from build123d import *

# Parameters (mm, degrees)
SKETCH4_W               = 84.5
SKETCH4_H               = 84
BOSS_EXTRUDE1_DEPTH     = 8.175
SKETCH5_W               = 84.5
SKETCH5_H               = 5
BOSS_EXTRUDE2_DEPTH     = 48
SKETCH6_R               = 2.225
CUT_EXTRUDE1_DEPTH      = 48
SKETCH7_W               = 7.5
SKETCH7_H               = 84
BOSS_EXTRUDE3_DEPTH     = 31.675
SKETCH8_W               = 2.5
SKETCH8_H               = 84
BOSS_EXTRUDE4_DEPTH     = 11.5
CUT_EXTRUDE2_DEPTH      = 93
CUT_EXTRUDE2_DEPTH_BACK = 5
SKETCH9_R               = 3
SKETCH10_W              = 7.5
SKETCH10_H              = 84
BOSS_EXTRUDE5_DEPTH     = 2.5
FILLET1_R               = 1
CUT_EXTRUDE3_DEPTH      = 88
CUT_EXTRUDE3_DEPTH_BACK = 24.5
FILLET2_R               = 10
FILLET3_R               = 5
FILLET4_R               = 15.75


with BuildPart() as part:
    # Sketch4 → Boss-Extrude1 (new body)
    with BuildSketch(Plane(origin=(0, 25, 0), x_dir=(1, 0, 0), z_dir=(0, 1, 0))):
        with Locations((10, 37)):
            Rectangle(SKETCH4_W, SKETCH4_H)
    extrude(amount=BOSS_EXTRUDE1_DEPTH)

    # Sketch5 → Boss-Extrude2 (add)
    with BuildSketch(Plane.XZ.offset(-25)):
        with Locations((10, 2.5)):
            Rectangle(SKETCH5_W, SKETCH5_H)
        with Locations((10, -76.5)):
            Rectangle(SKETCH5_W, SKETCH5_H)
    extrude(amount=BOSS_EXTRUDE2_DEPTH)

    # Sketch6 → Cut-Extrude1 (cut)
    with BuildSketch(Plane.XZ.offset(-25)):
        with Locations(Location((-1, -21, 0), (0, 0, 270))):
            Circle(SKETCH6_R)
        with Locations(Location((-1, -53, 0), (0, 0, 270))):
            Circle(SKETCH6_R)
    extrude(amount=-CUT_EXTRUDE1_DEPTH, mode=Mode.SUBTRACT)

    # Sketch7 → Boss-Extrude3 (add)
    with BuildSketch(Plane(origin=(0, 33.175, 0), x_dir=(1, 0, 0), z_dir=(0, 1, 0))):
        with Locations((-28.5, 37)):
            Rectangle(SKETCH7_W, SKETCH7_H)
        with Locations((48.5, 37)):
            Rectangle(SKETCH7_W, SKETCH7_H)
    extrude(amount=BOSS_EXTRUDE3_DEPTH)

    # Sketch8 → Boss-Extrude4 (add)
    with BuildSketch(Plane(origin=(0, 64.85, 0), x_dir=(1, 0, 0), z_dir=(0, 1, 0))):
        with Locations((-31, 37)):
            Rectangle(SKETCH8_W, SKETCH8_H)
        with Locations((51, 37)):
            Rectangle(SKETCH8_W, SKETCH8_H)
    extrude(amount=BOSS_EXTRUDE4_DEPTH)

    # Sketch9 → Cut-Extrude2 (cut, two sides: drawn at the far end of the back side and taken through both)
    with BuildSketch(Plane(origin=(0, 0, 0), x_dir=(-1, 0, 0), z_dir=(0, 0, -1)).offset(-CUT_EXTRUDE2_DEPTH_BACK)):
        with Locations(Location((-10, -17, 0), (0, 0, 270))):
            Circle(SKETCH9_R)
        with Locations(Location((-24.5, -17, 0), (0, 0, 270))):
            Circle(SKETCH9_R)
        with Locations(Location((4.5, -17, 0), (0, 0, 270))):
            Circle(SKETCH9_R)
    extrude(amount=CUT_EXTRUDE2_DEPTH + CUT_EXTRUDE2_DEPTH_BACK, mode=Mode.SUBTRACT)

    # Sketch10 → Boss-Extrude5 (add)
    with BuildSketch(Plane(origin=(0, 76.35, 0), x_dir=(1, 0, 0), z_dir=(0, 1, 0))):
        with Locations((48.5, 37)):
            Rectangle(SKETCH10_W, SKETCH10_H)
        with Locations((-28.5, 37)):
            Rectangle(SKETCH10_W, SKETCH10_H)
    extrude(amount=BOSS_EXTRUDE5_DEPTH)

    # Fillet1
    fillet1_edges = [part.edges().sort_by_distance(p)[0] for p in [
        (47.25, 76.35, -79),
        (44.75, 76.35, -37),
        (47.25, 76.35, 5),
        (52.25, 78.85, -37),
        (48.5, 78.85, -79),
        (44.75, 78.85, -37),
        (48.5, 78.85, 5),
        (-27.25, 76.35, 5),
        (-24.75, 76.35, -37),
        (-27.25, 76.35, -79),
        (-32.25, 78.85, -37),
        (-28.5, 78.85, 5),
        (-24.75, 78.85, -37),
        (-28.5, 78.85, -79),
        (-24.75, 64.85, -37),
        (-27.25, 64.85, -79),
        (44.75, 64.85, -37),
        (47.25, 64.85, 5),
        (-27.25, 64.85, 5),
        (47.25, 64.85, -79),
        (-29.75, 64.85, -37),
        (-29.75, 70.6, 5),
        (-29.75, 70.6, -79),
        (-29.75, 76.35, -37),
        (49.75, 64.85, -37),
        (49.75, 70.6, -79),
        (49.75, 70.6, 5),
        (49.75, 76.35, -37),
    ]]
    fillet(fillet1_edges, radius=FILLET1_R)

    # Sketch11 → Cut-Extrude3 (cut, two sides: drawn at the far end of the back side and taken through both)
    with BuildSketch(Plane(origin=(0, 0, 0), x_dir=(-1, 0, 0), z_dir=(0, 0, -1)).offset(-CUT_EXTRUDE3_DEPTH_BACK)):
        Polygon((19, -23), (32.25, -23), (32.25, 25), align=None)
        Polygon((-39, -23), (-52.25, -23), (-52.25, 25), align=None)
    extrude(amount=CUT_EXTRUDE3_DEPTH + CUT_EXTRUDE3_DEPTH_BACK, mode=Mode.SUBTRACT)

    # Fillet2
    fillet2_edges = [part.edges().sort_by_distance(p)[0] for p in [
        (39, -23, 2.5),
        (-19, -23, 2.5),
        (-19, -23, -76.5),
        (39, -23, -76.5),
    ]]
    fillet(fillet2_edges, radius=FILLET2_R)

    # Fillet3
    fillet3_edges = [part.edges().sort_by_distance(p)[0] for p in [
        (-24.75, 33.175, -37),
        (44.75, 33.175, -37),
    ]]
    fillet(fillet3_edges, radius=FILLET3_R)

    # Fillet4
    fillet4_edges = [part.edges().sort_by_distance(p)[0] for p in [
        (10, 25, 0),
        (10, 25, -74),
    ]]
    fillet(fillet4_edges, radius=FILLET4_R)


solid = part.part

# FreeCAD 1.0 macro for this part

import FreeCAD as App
import Part
import Sketcher
from FreeCAD import Vector
Q = App.Units.Quantity


def edges_at(feature, points):
    """Names of the edges that pass closest to the given points."""
    edges = feature.Shape.Edges
    near = lambda p: min(range(len(edges)), key=lambda i: edges[i].distToShape(Part.Vertex(*p))[0])
    return sorted({f"Edge{near(p) + 1}" for p in points})

doc = App.newDocument("Part")
body = doc.addObject("PartDesign::Body", "Body")

# Sketch on XZ plane
sketch1 = body.newObject("Sketcher::SketchObject", "Sketch")
sketch1.AttachmentSupport = (doc.getObject("XZ_Plane"), [""])
sketch1.MapMode = "FlatFace"
sketch1.AttachmentOffset = App.Placement(Vector(0, 0, -25), App.Rotation())
sketch1.addGeometry(Part.LineSegment(Vector(-32, -79, 0), Vector(-32, 5, 0)), False)
sketch1.addGeometry(Part.LineSegment(Vector(-32, 5, 0), Vector(52, 5, 0)), False)
sketch1.addGeometry(Part.LineSegment(Vector(52, 5, 0), Vector(52, -79, 0)), False)
sketch1.addGeometry(Part.LineSegment(Vector(52, -79, 0), Vector(-32, -79, 0)), False)
sketch1.addConstraint(Sketcher.Constraint("Coincident", 0, 2, 1, 1))
sketch1.addConstraint(Sketcher.Constraint("Coincident", 1, 2, 2, 1))
sketch1.addConstraint(Sketcher.Constraint("Coincident", 2, 2, 3, 1))
sketch1.addConstraint(Sketcher.Constraint("Coincident", 3, 2, 0, 1))
sketch1.addConstraint(Sketcher.Constraint("Vertical", 0))
sketch1.addConstraint(Sketcher.Constraint("Horizontal", 1))
sketch1.addConstraint(Sketcher.Constraint("Vertical", 2))
sketch1.addConstraint(Sketcher.Constraint("Horizontal", 3))
sketch1.addConstraint(Sketcher.Constraint("DistanceY", 0, 1, 0, 2, Q("84 mm")))
sketch1.addConstraint(Sketcher.Constraint("DistanceX", 1, 1, 1, 2, Q("84.5 mm")))
sketch1.addConstraint(Sketcher.Constraint("DistanceY", -1, 1, 0, 2, Q("5 mm")))
sketch1.addConstraint(Sketcher.Constraint("DistanceX", 0, 2, -1, 1, Q("32.25 mm")))
pad1 = body.newObject("PartDesign::Pad", "Pad")
pad1.Profile = sketch1
pad1.Length = 8.175
pad1.Reversed = True

# Sketch on XZ plane
sketch2 = body.newObject("Sketcher::SketchObject", "Sketch001")
sketch2.AttachmentSupport = (doc.getObject("XZ_Plane"), [""])
sketch2.MapMode = "FlatFace"
sketch2.AttachmentOffset = App.Placement(Vector(0, 0, -25), App.Rotation())
sketch2.addGeometry(Part.LineSegment(Vector(-32, 5, 0), Vector(-32, 0, 0)), False)
sketch2.addGeometry(Part.LineSegment(Vector(-32, 0, 0), Vector(52, 0, 0)), False)
sketch2.addGeometry(Part.LineSegment(Vector(52, 0, 0), Vector(52, 5, 0)), False)
sketch2.addGeometry(Part.LineSegment(Vector(52, 5, 0), Vector(-32, 5, 0)), False)
sketch2.addGeometry(Part.LineSegment(Vector(-32, -74, 0), Vector(-32, -79, 0)), False)
sketch2.addGeometry(Part.LineSegment(Vector(-32, -79, 0), Vector(52, -79, 0)), False)
sketch2.addGeometry(Part.LineSegment(Vector(52, -79, 0), Vector(52, -74, 0)), False)
sketch2.addGeometry(Part.LineSegment(Vector(52, -74, 0), Vector(-32, -74, 0)), False)
sketch2.addConstraint(Sketcher.Constraint("Coincident", 0, 2, 1, 1))
sketch2.addConstraint(Sketcher.Constraint("Coincident", 1, 2, 2, 1))
sketch2.addConstraint(Sketcher.Constraint("Coincident", 2, 2, 3, 1))
sketch2.addConstraint(Sketcher.Constraint("Coincident", 3, 2, 0, 1))
sketch2.addConstraint(Sketcher.Constraint("Coincident", 4, 2, 5, 1))
sketch2.addConstraint(Sketcher.Constraint("Coincident", 5, 2, 6, 1))
sketch2.addConstraint(Sketcher.Constraint("Coincident", 6, 2, 7, 1))
sketch2.addConstraint(Sketcher.Constraint("Coincident", 7, 2, 4, 1))
sketch2.addConstraint(Sketcher.Constraint("Vertical", 0))
sketch2.addConstraint(Sketcher.Constraint("Horizontal", 1))
sketch2.addConstraint(Sketcher.Constraint("Vertical", 2))
sketch2.addConstraint(Sketcher.Constraint("Horizontal", 3))
sketch2.addConstraint(Sketcher.Constraint("Vertical", 4))
sketch2.addConstraint(Sketcher.Constraint("Horizontal", 5))
sketch2.addConstraint(Sketcher.Constraint("Vertical", 6))
sketch2.addConstraint(Sketcher.Constraint("Horizontal", 7))
sketch2.addConstraint(Sketcher.Constraint("PointOnObject", 0, 2, -1))
sketch2.addConstraint(Sketcher.Constraint("Vertical", 3, 2, 4, 2))
sketch2.addConstraint(Sketcher.Constraint("Vertical", 2, 2, 5, 2))
sketch2.addConstraint(Sketcher.Constraint("Equal", 2, 4))
sketch2.addConstraint(Sketcher.Constraint("DistanceY", 0, 2, 0, 1, Q("5 mm")))
sketch2.addConstraint(Sketcher.Constraint("DistanceX", 1, 1, 1, 2, Q("84.5 mm")))
sketch2.addConstraint(Sketcher.Constraint("DistanceY", 4, 2, -1, 1, Q("79 mm")))
sketch2.addConstraint(Sketcher.Constraint("DistanceX", 0, 2, -1, 1, Q("32.25 mm")))
pad2 = body.newObject("PartDesign::Pad", "Pad001")
pad2.Profile = sketch2
pad2.Length = 48

# Sketch on XZ plane
sketch3 = body.newObject("Sketcher::SketchObject", "Sketch002")
sketch3.AttachmentSupport = (doc.getObject("XZ_Plane"), [""])
sketch3.MapMode = "FlatFace"
sketch3.AttachmentOffset = App.Placement(Vector(0, 0, -25), App.Rotation())
sketch3.addGeometry(Part.Circle(Vector(-1, -21, 0), Vector(0, 0, 1), 2.2), False)
sketch3.addGeometry(Part.Circle(Vector(-1, -53, 0), Vector(0, 0, 1), 2.2), False)
sketch3.addConstraint(Sketcher.Constraint("Equal", 0, 1))
sketch3.addConstraint(Sketcher.Constraint("Vertical", 0, 3, 1, 3))
sketch3.addConstraint(Sketcher.Constraint("Diameter", 0, Q("4.45 mm")))
sketch3.addConstraint(Sketcher.Constraint("DistanceX", 0, 3, -1, 1, Q("1 mm")))
sketch3.addConstraint(Sketcher.Constraint("DistanceY", 0, 3, -1, 1, Q("21 mm")))
sketch3.addConstraint(Sketcher.Constraint("DistanceY", 1, 3, -1, 1, Q("53 mm")))
pocket1 = body.newObject("PartDesign::Pocket", "Pocket")
pocket1.Profile = sketch3
pocket1.Length = 48

# Sketch on XZ plane
sketch4 = body.newObject("Sketcher::SketchObject", "Sketch003")
sketch4.AttachmentSupport = (doc.getObject("XZ_Plane"), [""])
sketch4.MapMode = "FlatFace"
sketch4.AttachmentOffset = App.Placement(Vector(0, 0, -33.175), App.Rotation())
sketch4.addGeometry(Part.LineSegment(Vector(-32, -79, 0), Vector(-32, 5, 0)), False)
sketch4.addGeometry(Part.LineSegment(Vector(-32, 5, 0), Vector(-25, 5, 0)), False)
sketch4.addGeometry(Part.LineSegment(Vector(-25, 5, 0), Vector(-25, -79, 0)), False)
sketch4.addGeometry(Part.LineSegment(Vector(-25, -79, 0), Vector(-32, -79, 0)), False)
sketch4.addGeometry(Part.LineSegment(Vector(45, -79, 0), Vector(45, 5, 0)), False)
sketch4.addGeometry(Part.LineSegment(Vector(45, 5, 0), Vector(52, 5, 0)), False)
sketch4.addGeometry(Part.LineSegment(Vector(52, 5, 0), Vector(52, -79, 0)), False)
sketch4.addGeometry(Part.LineSegment(Vector(52, -79, 0), Vector(45, -79, 0)), False)
sketch4.addConstraint(Sketcher.Constraint("Coincident", 0, 2, 1, 1))
sketch4.addConstraint(Sketcher.Constraint("Coincident", 1, 2, 2, 1))
sketch4.addConstraint(Sketcher.Constraint("Coincident", 2, 2, 3, 1))
sketch4.addConstraint(Sketcher.Constraint("Coincident", 3, 2, 0, 1))
sketch4.addConstraint(Sketcher.Constraint("Coincident", 4, 2, 5, 1))
sketch4.addConstraint(Sketcher.Constraint("Coincident", 5, 2, 6, 1))
sketch4.addConstraint(Sketcher.Constraint("Coincident", 6, 2, 7, 1))
sketch4.addConstraint(Sketcher.Constraint("Coincident", 7, 2, 4, 1))
sketch4.addConstraint(Sketcher.Constraint("Vertical", 0))
sketch4.addConstraint(Sketcher.Constraint("Horizontal", 1))
sketch4.addConstraint(Sketcher.Constraint("Vertical", 2))
sketch4.addConstraint(Sketcher.Constraint("Horizontal", 3))
sketch4.addConstraint(Sketcher.Constraint("Vertical", 4))
sketch4.addConstraint(Sketcher.Constraint("Horizontal", 5))
sketch4.addConstraint(Sketcher.Constraint("Vertical", 6))
sketch4.addConstraint(Sketcher.Constraint("Horizontal", 7))
sketch4.addConstraint(Sketcher.Constraint("Horizontal", 1, 2, 4, 2))
sketch4.addConstraint(Sketcher.Constraint("Horizontal", 3, 2, 6, 2))
sketch4.addConstraint(Sketcher.Constraint("Equal", 3, 5))
sketch4.addConstraint(Sketcher.Constraint("DistanceY", 0, 1, 0, 2, Q("84 mm")))
sketch4.addConstraint(Sketcher.Constraint("DistanceX", 1, 1, 1, 2, Q("7.5 mm")))
sketch4.addConstraint(Sketcher.Constraint("DistanceY", -1, 1, 0, 2, Q("5 mm")))
sketch4.addConstraint(Sketcher.Constraint("DistanceX", 0, 2, 4, 2, Q("77 mm")))
sketch4.addConstraint(Sketcher.Constraint("DistanceX", 0, 2, -1, 1, Q("32.25 mm")))
pad3 = body.newObject("PartDesign::Pad", "Pad002")
pad3.Profile = sketch4
pad3.Length = 31.675
pad3.Reversed = True

# Sketch on XZ plane
sketch5 = body.newObject("Sketcher::SketchObject", "Sketch004")
sketch5.AttachmentSupport = (doc.getObject("XZ_Plane"), [""])
sketch5.MapMode = "FlatFace"
sketch5.AttachmentOffset = App.Placement(Vector(0, 0, -64.85), App.Rotation())
sketch5.addGeometry(Part.LineSegment(Vector(-32.2, -79, 0), Vector(-32.2, 5, 0)), False)
sketch5.addGeometry(Part.LineSegment(Vector(-32.2, 5, 0), Vector(-29.8, 5, 0)), False)
sketch5.addGeometry(Part.LineSegment(Vector(-29.8, 5, 0), Vector(-29.8, -79, 0)), False)
sketch5.addGeometry(Part.LineSegment(Vector(-29.8, -79, 0), Vector(-32.2, -79, 0)), False)
sketch5.addGeometry(Part.LineSegment(Vector(49.8, -79, 0), Vector(49.8, 5, 0)), False)
sketch5.addGeometry(Part.LineSegment(Vector(49.8, 5, 0), Vector(52.2, 5, 0)), False)
sketch5.addGeometry(Part.LineSegment(Vector(52.2, 5, 0), Vector(52.2, -79, 0)), False)
sketch5.addGeometry(Part.LineSegment(Vector(52.2, -79, 0), Vector(49.8, -79, 0)), False)
sketch5.addConstraint(Sketcher.Constraint("Coincident", 0, 2, 1, 1))
sketch5.addConstraint(Sketcher.Constraint("Coincident", 1, 2, 2, 1))
sketch5.addConstraint(Sketcher.Constraint("Coincident", 2, 2, 3, 1))
sketch5.addConstraint(Sketcher.Constraint("Coincident", 3, 2, 0, 1))
sketch5.addConstraint(Sketcher.Constraint("Coincident", 4, 2, 5, 1))
sketch5.addConstraint(Sketcher.Constraint("Coincident", 5, 2, 6, 1))
sketch5.addConstraint(Sketcher.Constraint("Coincident", 6, 2, 7, 1))
sketch5.addConstraint(Sketcher.Constraint("Coincident", 7, 2, 4, 1))
sketch5.addConstraint(Sketcher.Constraint("Vertical", 0))
sketch5.addConstraint(Sketcher.Constraint("Horizontal", 1))
sketch5.addConstraint(Sketcher.Constraint("Vertical", 2))
sketch5.addConstraint(Sketcher.Constraint("Horizontal", 3))
sketch5.addConstraint(Sketcher.Constraint("Vertical", 4))
sketch5.addConstraint(Sketcher.Constraint("Horizontal", 5))
sketch5.addConstraint(Sketcher.Constraint("Vertical", 6))
sketch5.addConstraint(Sketcher.Constraint("Horizontal", 7))
sketch5.addConstraint(Sketcher.Constraint("Horizontal", 1, 2, 4, 2))
sketch5.addConstraint(Sketcher.Constraint("Horizontal", 3, 2, 6, 2))
sketch5.addConstraint(Sketcher.Constraint("Equal", 3, 5))
sketch5.addConstraint(Sketcher.Constraint("DistanceY", 0, 1, 0, 2, Q("84 mm")))
sketch5.addConstraint(Sketcher.Constraint("DistanceX", 1, 1, 1, 2, Q("2.5 mm")))
sketch5.addConstraint(Sketcher.Constraint("DistanceY", -1, 1, 0, 2, Q("5 mm")))
sketch5.addConstraint(Sketcher.Constraint("DistanceX", 0, 2, 4, 2, Q("82 mm")))
sketch5.addConstraint(Sketcher.Constraint("DistanceX", 0, 2, -1, 1, Q("32.25 mm")))
pad4 = body.newObject("PartDesign::Pad", "Pad003")
pad4.Profile = sketch5
pad4.Length = 11.5
pad4.Reversed = True

# Sketch on XY plane
sketch6 = body.newObject("Sketcher::SketchObject", "Sketch005")
sketch6.AttachmentSupport = (doc.getObject("XY_Plane"), [""])
sketch6.MapMode = "FlatFace"
sketch6.addGeometry(Part.Circle(Vector(10, -17, 0), Vector(0, 0, 1), 3), False)
sketch6.addGeometry(Part.Circle(Vector(24.5, -17, 0), Vector(0, 0, 1), 3), False)
sketch6.addGeometry(Part.Circle(Vector(-4.5, -17, 0), Vector(0, 0, 1), 3), False)
sketch6.addConstraint(Sketcher.Constraint("Equal", 0, 1))
sketch6.addConstraint(Sketcher.Constraint("Equal", 1, 2))
sketch6.addConstraint(Sketcher.Constraint("Horizontal", 0, 3, 1, 3))
sketch6.addConstraint(Sketcher.Constraint("Horizontal", 1, 3, 2, 3))
sketch6.addConstraint(Sketcher.Constraint("Diameter", 0, Q("6 mm")))
sketch6.addConstraint(Sketcher.Constraint("DistanceX", -1, 1, 0, 3, Q("10 mm")))
sketch6.addConstraint(Sketcher.Constraint("DistanceY", 0, 3, -1, 1, Q("17 mm")))
sketch6.addConstraint(Sketcher.Constraint("DistanceX", 2, 3, 1, 3, Q("29 mm")))
sketch6.addConstraint(Sketcher.Constraint("DistanceX", -1, 1, 1, 3, Q("24.5 mm")))
pocket2 = body.newObject("PartDesign::Pocket", "Pocket001")
pocket2.Profile = sketch6
pocket2.Type = "ThroughAll"
pocket2.Midplane = True

# Sketch on XZ plane
sketch7 = body.newObject("Sketcher::SketchObject", "Sketch006")
sketch7.AttachmentSupport = (doc.getObject("XZ_Plane"), [""])
sketch7.MapMode = "FlatFace"
sketch7.AttachmentOffset = App.Placement(Vector(0, 0, -76.35), App.Rotation())
sketch7.addGeometry(Part.LineSegment(Vector(45, -79, 0), Vector(45, 5, 0)), False)
sketch7.addGeometry(Part.LineSegment(Vector(45, 5, 0), Vector(52, 5, 0)), False)
sketch7.addGeometry(Part.LineSegment(Vector(52, 5, 0), Vector(52, -79, 0)), False)
sketch7.addGeometry(Part.LineSegment(Vector(52, -79, 0), Vector(45, -79, 0)), False)
sketch7.addGeometry(Part.LineSegment(Vector(-32, -79, 0), Vector(-32, 5, 0)), False)
sketch7.addGeometry(Part.LineSegment(Vector(-32, 5, 0), Vector(-25, 5, 0)), False)
sketch7.addGeometry(Part.LineSegment(Vector(-25, 5, 0), Vector(-25, -79, 0)), False)
sketch7.addGeometry(Part.LineSegment(Vector(-25, -79, 0), Vector(-32, -79, 0)), False)
sketch7.addConstraint(Sketcher.Constraint("Coincident", 0, 2, 1, 1))
sketch7.addConstraint(Sketcher.Constraint("Coincident", 1, 2, 2, 1))
sketch7.addConstraint(Sketcher.Constraint("Coincident", 2, 2, 3, 1))
sketch7.addConstraint(Sketcher.Constraint("Coincident", 3, 2, 0, 1))
sketch7.addConstraint(Sketcher.Constraint("Coincident", 4, 2, 5, 1))
sketch7.addConstraint(Sketcher.Constraint("Coincident", 5, 2, 6, 1))
sketch7.addConstraint(Sketcher.Constraint("Coincident", 6, 2, 7, 1))
sketch7.addConstraint(Sketcher.Constraint("Coincident", 7, 2, 4, 1))
sketch7.addConstraint(Sketcher.Constraint("Vertical", 0))
sketch7.addConstraint(Sketcher.Constraint("Horizontal", 1))
sketch7.addConstraint(Sketcher.Constraint("Vertical", 2))
sketch7.addConstraint(Sketcher.Constraint("Horizontal", 3))
sketch7.addConstraint(Sketcher.Constraint("Vertical", 4))
sketch7.addConstraint(Sketcher.Constraint("Horizontal", 5))
sketch7.addConstraint(Sketcher.Constraint("Vertical", 6))
sketch7.addConstraint(Sketcher.Constraint("Horizontal", 7))
sketch7.addConstraint(Sketcher.Constraint("Horizontal", 1, 2, 4, 2))
sketch7.addConstraint(Sketcher.Constraint("Horizontal", 3, 2, 6, 2))
sketch7.addConstraint(Sketcher.Constraint("Equal", 3, 5))
sketch7.addConstraint(Sketcher.Constraint("DistanceY", 0, 1, 0, 2, Q("84 mm")))
sketch7.addConstraint(Sketcher.Constraint("DistanceX", 1, 1, 1, 2, Q("7.5 mm")))
sketch7.addConstraint(Sketcher.Constraint("DistanceY", -1, 1, 0, 2, Q("5 mm")))
sketch7.addConstraint(Sketcher.Constraint("DistanceX", 4, 2, 0, 2, Q("77 mm")))
sketch7.addConstraint(Sketcher.Constraint("DistanceX", -1, 1, 0, 2, Q("44.75 mm")))
pad5 = body.newObject("PartDesign::Pad", "Pad004")
pad5.Profile = sketch7
pad5.Length = 2.5
pad5.Reversed = True
doc.recompute()

fillet = body.newObject("PartDesign::Fillet", "Fillet")
fillet.Base = (pad5, edges_at(pad5, [
    (47.25, 76.35, -79),
    (44.75, 76.35, -37),
    (47.25, 76.35, 5),
    (52.25, 78.85, -37),
    (48.5, 78.85, -79),
    (44.75, 78.85, -37),
    (48.5, 78.85, 5),
    (-27.25, 76.35, 5),
    (-24.75, 76.35, -37),
    (-27.25, 76.35, -79),
    (-32.25, 78.85, -37),
    (-28.5, 78.85, 5),
    (-24.75, 78.85, -37),
    (-28.5, 78.85, -79),
    (-24.75, 64.85, -37),
    (-27.25, 64.85, -79),
    (44.75, 64.85, -37),
    (47.25, 64.85, 5),
    (-27.25, 64.85, 5),
    (47.25, 64.85, -79),
    (-29.75, 64.85, -37),
    (-29.75, 70.6, 5),
    (-29.75, 70.6, -79),
    (-29.75, 76.35, -37),
    (49.75, 64.85, -37),
    (49.75, 70.6, -79),
    (49.75, 70.6, 5),
    (49.75, 76.35, -37),
]))
fillet.Radius = 1

# Sketch on XY plane
sketch8 = body.newObject("Sketcher::SketchObject", "Sketch007")
sketch8.AttachmentSupport = (doc.getObject("XY_Plane"), [""])
sketch8.MapMode = "FlatFace"
sketch8.addGeometry(Part.LineSegment(Vector(-19, -23, 0), Vector(-32, -23, 0)), False)
sketch8.addGeometry(Part.LineSegment(Vector(-32, -23, 0), Vector(-32, 25, 0)), False)
sketch8.addGeometry(Part.LineSegment(Vector(-32, 25, 0), Vector(-19, -23, 0)), False)
sketch8.addGeometry(Part.LineSegment(Vector(52, -23, 0), Vector(39, -23, 0)), False)
sketch8.addGeometry(Part.LineSegment(Vector(39, -23, 0), Vector(52, 25, 0)), False)
sketch8.addGeometry(Part.LineSegment(Vector(52, 25, 0), Vector(52, -23, 0)), False)
sketch8.addConstraint(Sketcher.Constraint("Coincident", 0, 2, 1, 1))
sketch8.addConstraint(Sketcher.Constraint("Coincident", 1, 2, 2, 1))
sketch8.addConstraint(Sketcher.Constraint("Coincident", 2, 2, 0, 1))
sketch8.addConstraint(Sketcher.Constraint("Coincident", 3, 2, 4, 1))
sketch8.addConstraint(Sketcher.Constraint("Coincident", 4, 2, 5, 1))
sketch8.addConstraint(Sketcher.Constraint("Coincident", 5, 2, 3, 1))
sketch8.addConstraint(Sketcher.Constraint("Horizontal", 0))
sketch8.addConstraint(Sketcher.Constraint("Vertical", 1))
sketch8.addConstraint(Sketcher.Constraint("Horizontal", 3))
sketch8.addConstraint(Sketcher.Constraint("Vertical", 5))
sketch8.addConstraint(Sketcher.Constraint("Horizontal", 2, 2, 3, 2))
sketch8.addConstraint(Sketcher.Constraint("Horizontal", 1, 2, 4, 2))
sketch8.addConstraint(Sketcher.Constraint("Equal", 0, 3))
sketch8.addConstraint(Sketcher.Constraint("DistanceY", 1, 1, 1, 2, Q("48 mm")))
sketch8.addConstraint(Sketcher.Constraint("DistanceY", 0, 2, -1, 1, Q("23 mm")))
sketch8.addConstraint(Sketcher.Constraint("DistanceX", 2, 2, -1, 1, Q("19 mm")))
sketch8.addConstraint(Sketcher.Constraint("DistanceX", -1, 1, 3, 2, Q("39 mm")))
sketch8.addConstraint(Sketcher.Constraint("DistanceX", 0, 2, 0, 1, Q("13.25 mm")))
pocket3 = body.newObject("PartDesign::Pocket", "Pocket002")
pocket3.Profile = sketch8
pocket3.Type = "ThroughAll"
pocket3.Midplane = True
doc.recompute()

fillet2 = body.newObject("PartDesign::Fillet", "Fillet001")
fillet2.Base = (pocket3, edges_at(pocket3, [
    (39, -23, 2.5),
    (-19, -23, 2.5),
    (-19, -23, -76.5),
    (39, -23, -76.5),
]))
fillet2.Radius = 10
doc.recompute()

fillet3 = body.newObject("PartDesign::Fillet", "Fillet002")
fillet3.Base = (fillet2, edges_at(fillet2, [(-24.75, 33.175, -37), (44.75, 33.175, -37)]))
fillet3.Radius = 5
doc.recompute()

fillet4 = body.newObject("PartDesign::Fillet", "Fillet003")
fillet4.Base = (fillet3, edges_at(fillet3, [(10, 25, 0), (10, 25, -74)]))
fillet4.Radius = 15.75

doc.recompute()
